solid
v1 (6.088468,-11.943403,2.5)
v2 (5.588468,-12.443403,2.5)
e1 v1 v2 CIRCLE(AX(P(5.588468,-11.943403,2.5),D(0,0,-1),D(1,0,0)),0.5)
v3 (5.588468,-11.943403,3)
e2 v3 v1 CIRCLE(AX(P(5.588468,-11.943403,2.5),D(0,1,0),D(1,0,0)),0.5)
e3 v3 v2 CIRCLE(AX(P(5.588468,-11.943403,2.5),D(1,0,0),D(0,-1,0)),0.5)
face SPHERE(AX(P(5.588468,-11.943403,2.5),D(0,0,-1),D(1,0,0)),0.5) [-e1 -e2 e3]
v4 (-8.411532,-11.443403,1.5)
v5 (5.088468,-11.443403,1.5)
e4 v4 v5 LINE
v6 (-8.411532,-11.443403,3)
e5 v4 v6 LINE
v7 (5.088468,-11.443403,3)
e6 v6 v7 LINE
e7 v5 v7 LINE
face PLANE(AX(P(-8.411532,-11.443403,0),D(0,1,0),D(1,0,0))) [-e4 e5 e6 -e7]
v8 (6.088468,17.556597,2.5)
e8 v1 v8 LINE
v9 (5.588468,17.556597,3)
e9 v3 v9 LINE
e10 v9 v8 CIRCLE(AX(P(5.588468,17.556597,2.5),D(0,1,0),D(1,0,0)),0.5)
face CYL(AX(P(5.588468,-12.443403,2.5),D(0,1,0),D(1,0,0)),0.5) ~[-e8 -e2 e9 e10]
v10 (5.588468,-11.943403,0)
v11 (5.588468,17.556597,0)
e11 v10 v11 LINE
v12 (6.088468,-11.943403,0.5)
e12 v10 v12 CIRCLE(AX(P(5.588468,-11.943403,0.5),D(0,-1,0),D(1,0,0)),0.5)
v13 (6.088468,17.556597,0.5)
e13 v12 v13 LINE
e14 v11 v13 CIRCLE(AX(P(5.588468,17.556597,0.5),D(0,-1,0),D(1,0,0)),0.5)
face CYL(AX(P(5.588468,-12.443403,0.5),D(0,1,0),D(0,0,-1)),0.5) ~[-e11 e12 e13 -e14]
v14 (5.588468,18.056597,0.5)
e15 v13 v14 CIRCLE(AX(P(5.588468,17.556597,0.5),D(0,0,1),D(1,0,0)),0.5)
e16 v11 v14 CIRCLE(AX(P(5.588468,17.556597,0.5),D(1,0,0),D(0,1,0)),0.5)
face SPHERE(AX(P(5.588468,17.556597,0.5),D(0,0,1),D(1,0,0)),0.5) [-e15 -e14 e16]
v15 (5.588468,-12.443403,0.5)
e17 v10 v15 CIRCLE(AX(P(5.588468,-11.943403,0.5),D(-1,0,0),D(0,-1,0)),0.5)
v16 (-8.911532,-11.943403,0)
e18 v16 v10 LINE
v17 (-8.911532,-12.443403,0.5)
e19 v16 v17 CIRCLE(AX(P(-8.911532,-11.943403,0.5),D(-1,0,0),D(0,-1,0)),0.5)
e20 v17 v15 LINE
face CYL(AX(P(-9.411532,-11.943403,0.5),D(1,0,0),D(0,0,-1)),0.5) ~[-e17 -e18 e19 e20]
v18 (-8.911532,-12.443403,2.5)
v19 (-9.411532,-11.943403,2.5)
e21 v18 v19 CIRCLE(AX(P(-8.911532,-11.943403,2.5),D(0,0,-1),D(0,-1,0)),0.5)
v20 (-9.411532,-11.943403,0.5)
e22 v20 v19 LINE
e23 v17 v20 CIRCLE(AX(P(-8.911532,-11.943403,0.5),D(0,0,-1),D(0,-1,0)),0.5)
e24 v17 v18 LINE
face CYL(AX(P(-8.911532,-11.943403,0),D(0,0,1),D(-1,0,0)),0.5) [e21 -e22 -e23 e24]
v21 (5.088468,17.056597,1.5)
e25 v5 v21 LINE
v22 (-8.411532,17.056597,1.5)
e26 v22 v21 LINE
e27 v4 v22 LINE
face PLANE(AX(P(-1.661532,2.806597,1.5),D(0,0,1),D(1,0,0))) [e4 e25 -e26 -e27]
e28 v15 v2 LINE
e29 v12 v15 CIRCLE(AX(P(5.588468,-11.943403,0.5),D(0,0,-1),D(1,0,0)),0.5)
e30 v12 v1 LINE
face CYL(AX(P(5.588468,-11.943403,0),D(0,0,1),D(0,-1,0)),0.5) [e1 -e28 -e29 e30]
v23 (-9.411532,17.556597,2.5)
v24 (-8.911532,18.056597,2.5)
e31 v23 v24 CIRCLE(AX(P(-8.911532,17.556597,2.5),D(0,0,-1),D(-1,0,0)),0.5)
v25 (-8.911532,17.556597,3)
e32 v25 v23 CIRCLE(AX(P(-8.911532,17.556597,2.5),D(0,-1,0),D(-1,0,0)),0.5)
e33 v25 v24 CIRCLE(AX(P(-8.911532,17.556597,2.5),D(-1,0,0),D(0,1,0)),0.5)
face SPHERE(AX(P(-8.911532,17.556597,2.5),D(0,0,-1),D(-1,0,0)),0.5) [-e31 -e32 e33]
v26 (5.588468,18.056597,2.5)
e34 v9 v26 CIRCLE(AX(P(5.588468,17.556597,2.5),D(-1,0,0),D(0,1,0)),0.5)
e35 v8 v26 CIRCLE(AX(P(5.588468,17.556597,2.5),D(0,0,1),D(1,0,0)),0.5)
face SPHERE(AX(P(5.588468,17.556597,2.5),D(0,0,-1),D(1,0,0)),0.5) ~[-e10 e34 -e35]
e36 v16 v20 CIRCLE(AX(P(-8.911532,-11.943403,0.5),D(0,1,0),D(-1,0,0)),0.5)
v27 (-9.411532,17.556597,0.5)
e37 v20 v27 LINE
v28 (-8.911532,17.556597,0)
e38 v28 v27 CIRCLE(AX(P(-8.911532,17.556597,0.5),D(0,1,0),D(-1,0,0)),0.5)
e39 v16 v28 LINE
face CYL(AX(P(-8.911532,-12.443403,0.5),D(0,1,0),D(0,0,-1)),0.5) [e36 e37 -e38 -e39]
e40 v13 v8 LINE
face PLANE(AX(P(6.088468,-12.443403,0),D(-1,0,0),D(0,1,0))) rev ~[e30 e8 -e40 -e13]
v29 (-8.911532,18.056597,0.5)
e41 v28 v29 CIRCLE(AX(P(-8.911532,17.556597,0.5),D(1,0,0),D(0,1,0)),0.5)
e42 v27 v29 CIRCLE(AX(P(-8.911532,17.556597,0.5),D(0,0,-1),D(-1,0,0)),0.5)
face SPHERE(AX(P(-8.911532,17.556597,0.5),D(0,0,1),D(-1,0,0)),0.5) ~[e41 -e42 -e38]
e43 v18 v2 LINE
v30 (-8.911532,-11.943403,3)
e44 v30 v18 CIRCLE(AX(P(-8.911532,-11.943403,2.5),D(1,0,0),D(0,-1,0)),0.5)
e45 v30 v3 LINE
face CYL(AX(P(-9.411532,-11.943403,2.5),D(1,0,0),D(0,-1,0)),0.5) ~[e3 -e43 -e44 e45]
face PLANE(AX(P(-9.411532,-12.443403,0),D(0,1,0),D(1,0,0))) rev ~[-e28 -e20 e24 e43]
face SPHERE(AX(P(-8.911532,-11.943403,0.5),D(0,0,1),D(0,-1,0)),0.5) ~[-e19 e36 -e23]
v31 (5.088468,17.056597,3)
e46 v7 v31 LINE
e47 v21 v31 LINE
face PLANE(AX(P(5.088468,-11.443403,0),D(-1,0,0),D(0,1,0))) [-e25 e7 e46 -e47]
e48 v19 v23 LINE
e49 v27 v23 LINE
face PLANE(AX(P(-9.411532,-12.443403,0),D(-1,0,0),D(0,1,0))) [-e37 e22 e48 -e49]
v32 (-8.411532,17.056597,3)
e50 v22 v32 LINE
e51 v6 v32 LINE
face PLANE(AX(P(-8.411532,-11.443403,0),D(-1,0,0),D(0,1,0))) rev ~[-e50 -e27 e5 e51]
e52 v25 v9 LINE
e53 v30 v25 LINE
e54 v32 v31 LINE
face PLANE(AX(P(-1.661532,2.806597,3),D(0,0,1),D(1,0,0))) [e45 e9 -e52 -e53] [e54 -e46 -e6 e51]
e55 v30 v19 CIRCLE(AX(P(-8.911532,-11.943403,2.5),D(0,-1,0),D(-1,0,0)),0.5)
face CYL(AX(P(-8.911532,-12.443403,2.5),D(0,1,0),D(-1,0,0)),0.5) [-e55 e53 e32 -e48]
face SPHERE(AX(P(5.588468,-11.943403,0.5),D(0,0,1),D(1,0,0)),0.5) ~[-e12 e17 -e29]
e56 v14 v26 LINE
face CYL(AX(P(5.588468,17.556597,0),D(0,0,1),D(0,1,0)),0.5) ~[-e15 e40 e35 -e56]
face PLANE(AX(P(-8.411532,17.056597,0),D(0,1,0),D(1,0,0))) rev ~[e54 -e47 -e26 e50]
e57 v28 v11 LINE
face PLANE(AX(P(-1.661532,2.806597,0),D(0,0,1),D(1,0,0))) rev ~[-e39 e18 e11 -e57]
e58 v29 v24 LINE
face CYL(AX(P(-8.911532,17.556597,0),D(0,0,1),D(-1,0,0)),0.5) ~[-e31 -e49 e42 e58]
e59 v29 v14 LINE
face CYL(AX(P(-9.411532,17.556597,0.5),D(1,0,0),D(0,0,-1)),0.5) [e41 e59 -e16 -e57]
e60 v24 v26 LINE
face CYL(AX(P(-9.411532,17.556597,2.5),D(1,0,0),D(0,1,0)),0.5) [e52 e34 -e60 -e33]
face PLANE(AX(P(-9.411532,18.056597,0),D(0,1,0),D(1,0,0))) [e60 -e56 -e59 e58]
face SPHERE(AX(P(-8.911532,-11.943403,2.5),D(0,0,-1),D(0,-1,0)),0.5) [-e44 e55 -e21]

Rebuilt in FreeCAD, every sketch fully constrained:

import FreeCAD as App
import Part
import Sketcher
from FreeCAD import Vector


def edges_at(feature, points):
    """Names of the edges that pass closest to the given points."""
    edges = feature.Shape.Edges
    near = lambda p: min(range(len(edges)), key=lambda i: edges[i].distToShape(Part.Vertex(*p))[0])
    return sorted({f"Edge{near(p) + 1}" for p in points})

doc = App.newDocument("Part")
body = doc.addObject("PartDesign::Body", "Body")

# Sketch on XY plane
sketch1 = body.newObject("Sketcher::SketchObject", "Sketch")
sketch1.AttachmentSupport = (doc.getObject("XY_Plane"), [""])
sketch1.MapMode = "FlatFace"
sketch1.addGeometry(Part.LineSegment(Vector(-9, 18, 0), Vector(-9, -12, 0)), False)
sketch1.addGeometry(Part.LineSegment(Vector(-9, -12, 0), Vector(6, -12, 0)), False)
sketch1.addGeometry(Part.LineSegment(Vector(6, -12, 0), Vector(6, 18, 0)), False)
sketch1.addGeometry(Part.LineSegment(Vector(6, 18, 0), Vector(-9, 18, 0)), False)
sketch1.addGeometry(Part.LineSegment(Vector(5, -11, 0), Vector(-8, -11, 0)), False)
sketch1.addGeometry(Part.LineSegment(Vector(-8, -11, 0), Vector(-8, 17, 0)), False)
sketch1.addGeometry(Part.LineSegment(Vector(-8, 17, 0), Vector(5, 17, 0)), False)
sketch1.addGeometry(Part.LineSegment(Vector(5, 17, 0), Vector(5, -11, 0)), False)
sketch1.addConstraint(Sketcher.Constraint("Coincident", 0, 2, 1, 1))
sketch1.addConstraint(Sketcher.Constraint("Coincident", 1, 2, 2, 1))
sketch1.addConstraint(Sketcher.Constraint("Coincident", 2, 2, 3, 1))
sketch1.addConstraint(Sketcher.Constraint("Coincident", 3, 2, 0, 1))
sketch1.addConstraint(Sketcher.Constraint("Coincident", 4, 2, 5, 1))
sketch1.addConstraint(Sketcher.Constraint("Coincident", 5, 2, 6, 1))
sketch1.addConstraint(Sketcher.Constraint("Coincident", 6, 2, 7, 1))
sketch1.addConstraint(Sketcher.Constraint("Coincident", 7, 2, 4, 1))
sketch1.addConstraint(Sketcher.Constraint("Vertical", 0))
sketch1.addConstraint(Sketcher.Constraint("Horizontal", 1))
sketch1.addConstraint(Sketcher.Constraint("Vertical", 2))
sketch1.addConstraint(Sketcher.Constraint("Horizontal", 3))
sketch1.addConstraint(Sketcher.Constraint("Horizontal", 4))
sketch1.addConstraint(Sketcher.Constraint("Vertical", 5))
sketch1.addConstraint(Sketcher.Constraint("Horizontal", 6))
sketch1.addConstraint(Sketcher.Constraint("Vertical", 7))
sketch1.addConstraint(Sketcher.Constraint("DistanceX", 1, 1, 1, 2, 15.5))
sketch1.addConstraint(Sketcher.Constraint("DistanceX", 4, 2, 4, 1, 13.5))
sketch1.addConstraint(Sketcher.Constraint("DistanceY", 0, 2, 0, 1, 30.5))
sketch1.addConstraint(Sketcher.Constraint("DistanceY", 5, 1, 5, 2, 28.5))
sketch1.addConstraint(Sketcher.Constraint("DistanceX", 0, 2, 4, 2, 1.0))
sketch1.addConstraint(Sketcher.Constraint("DistanceY", 0, 2, 4, 2, 1.0))
sketch1.addConstraint(Sketcher.Constraint("DistanceX", 0, 2, -1, 1, 9.411532))
sketch1.addConstraint(Sketcher.Constraint("DistanceY", 0, 2, -1, 1, 12.443403))
pad1 = body.newObject("PartDesign::Pad", "Pad")
pad1.Profile = sketch1
pad1.Length = 3

# Sketch on XY plane
sketch2 = body.newObject("Sketcher::SketchObject", "Sketch001")
sketch2.AttachmentSupport = (doc.getObject("XY_Plane"), [""])
sketch2.MapMode = "FlatFace"
sketch2.addGeometry(Part.LineSegment(Vector(-8, 17, 0), Vector(-8, -11, 0)), False)
sketch2.addGeometry(Part.LineSegment(Vector(-8, -11, 0), Vector(5, -11, 0)), False)
sketch2.addGeometry(Part.LineSegment(Vector(5, -11, 0), Vector(5, 17, 0)), False)
sketch2.addGeometry(Part.LineSegment(Vector(5, 17, 0), Vector(-8, 17, 0)), False)
sketch2.addConstraint(Sketcher.Constraint("Coincident", 0, 2, 1, 1))
sketch2.addConstraint(Sketcher.Constraint("Coincident", 1, 2, 2, 1))
sketch2.addConstraint(Sketcher.Constraint("Coincident", 2, 2, 3, 1))
sketch2.addConstraint(Sketcher.Constraint("Coincident", 3, 2, 0, 1))
sketch2.addConstraint(Sketcher.Constraint("Vertical", 0))
sketch2.addConstraint(Sketcher.Constraint("Horizontal", 1))
sketch2.addConstraint(Sketcher.Constraint("Vertical", 2))
sketch2.addConstraint(Sketcher.Constraint("Horizontal", 3))
sketch2.addConstraint(Sketcher.Constraint("DistanceX", 1, 1, 1, 2, 13.5))
sketch2.addConstraint(Sketcher.Constraint("DistanceY", 0, 2, 0, 1, 28.5))
sketch2.addConstraint(Sketcher.Constraint("DistanceX", 0, 2, -1, 1, 8.411532))
sketch2.addConstraint(Sketcher.Constraint("DistanceY", 0, 2, -1, 1, 11.443403))
pad2 = body.newObject("PartDesign::Pad", "Pad001")
pad2.Profile = sketch2
pad2.Length = 1.5
doc.recompute()

fillet = body.newObject("PartDesign::Fillet", "Fillet")
fillet.Base = (pad2, edges_at(pad2, [
    (6.088, -12.443, 1.5),
    (6.088, 18.057, 1.5),
    (6.088, 2.807, 0),
    (6.088, 2.807, 3),
    (-9.412, -12.443, 1.5),
    (-1.662, -12.443, 0),
    (-1.662, -12.443, 3),
    (-9.412, 18.057, 1.5),
    (-9.412, 2.807, 0),
    (-9.412, 2.807, 3),
    (-1.662, 18.057, 0),
    (-1.662, 18.057, 3),
]))
fillet.Radius = 0.5

doc.recompute()
